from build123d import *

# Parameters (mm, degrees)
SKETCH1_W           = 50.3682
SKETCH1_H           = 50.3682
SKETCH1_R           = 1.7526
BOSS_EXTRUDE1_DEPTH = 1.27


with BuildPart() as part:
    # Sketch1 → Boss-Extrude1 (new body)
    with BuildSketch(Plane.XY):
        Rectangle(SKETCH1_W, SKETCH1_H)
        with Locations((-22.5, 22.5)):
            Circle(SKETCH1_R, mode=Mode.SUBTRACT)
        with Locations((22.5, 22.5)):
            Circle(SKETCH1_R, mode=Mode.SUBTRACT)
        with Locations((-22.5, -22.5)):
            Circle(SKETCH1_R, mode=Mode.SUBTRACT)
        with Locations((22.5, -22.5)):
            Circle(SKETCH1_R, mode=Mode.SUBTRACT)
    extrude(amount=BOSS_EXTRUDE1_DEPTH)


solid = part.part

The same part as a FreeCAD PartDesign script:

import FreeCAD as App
import Part
import Sketcher

V = App.Vector
Q = App.Units.Quantity


def add_polygon(sketch, points):
    """Adds a closed chain of lines whose ends are joined by coincident constraints."""
    first, n = sketch.GeometryCount, len(points)
    for a, b in zip(points, points[1:] + points[:1]):
        sketch.addGeometry(Part.LineSegment(App.Vector(*a, 0), App.Vector(*b, 0)), False)
    for i in range(n):
        sketch.addConstraint(Sketcher.Constraint("Coincident", first + i, 2, first + (i + 1) % n, 1))

doc = App.newDocument("Part")
params = doc.addObject("Spreadsheet::Sheet", "Params")
for row, (alias, value) in enumerate([
    ("sketch1_diameter", "0.138 in"),
    ("sketch1_width", "1.983 in"),
    ("pad1_length", "0.05 in"),
], start=1):
    params.set(f"A{row}", alias)
    params.set(f"B{row}", "=" + value)
    params.setAlias(f"B{row}", alias)

body = doc.addObject("PartDesign::Body", "Body")

sketch1 = doc.addObject("Sketcher::SketchObject", "Sketch")
body.addObject(sketch1)
sketch1.AttachmentSupport = (doc.XY_Plane, [""])
sketch1.MapMode = "FlatFace"
add_polygon(sketch1, [(-25.2, 25.2), (-25.2, -25.2), (25.2, -25.2), (25.2, 25.2)])
sketch1.addGeometry(Part.Circle(V(-22.5, -22.5, 0), V(0, 0, 1), 1.8), False)
sketch1.addGeometry(Part.Circle(V(22.5, -22.5, 0), V(0, 0, 1), 1.8), False)
sketch1.addGeometry(Part.Circle(V(-22.5, 22.5, 0), V(0, 0, 1), 1.8), False)
sketch1.addGeometry(Part.Circle(V(22.5, 22.5, 0), V(0, 0, 1), 1.8), False)
sketch1.addConstraint([
    Sketcher.Constraint("Vertical", 0),
    Sketcher.Constraint("Horizontal", 1),
    Sketcher.Constraint("Vertical", 2),
    Sketcher.Constraint("Horizontal", 3),
    Sketcher.Constraint("Equal", 4, 5),
    Sketcher.Constraint("Equal", 5, 6),
    Sketcher.Constraint("Equal", 6, 7),
    Sketcher.Constraint("Symmetric", 5, 3, 6, 3, -1, 1),
    Sketcher.Constraint("Symmetric", 4, 3, 7, 3, -1, 1),
    Sketcher.Constraint("Symmetric", 0, 2, 2, 2, -1, 1),
    Sketcher.Constraint("Symmetric", 4, 3, 5, 3, -2),
    Sketcher.Constraint("Equal", 3, 0),
    Sketcher.Constraint("Diameter", 4, Q("0.138 in")),
    Sketcher.Constraint("DistanceX", 1, 1, 1, 2, Q("1.983 in")),
    Sketcher.Constraint("DistanceX", 4, 3, -1, 1, 22.5),
    Sketcher.Constraint("DistanceY", 4, 3, -1, 1, 22.5),
])
sketch1.setExpression("Constraints[16]", "Params.sketch1_diameter")
sketch1.setExpression("Constraints[17]", "Params.sketch1_width")
pad1 = doc.addObject("PartDesign::Pad", "Pad")
body.addObject(pad1)
pad1.Profile = sketch1
pad1.setExpression("Length", "Params.pad1_length")

doc.recompute()
